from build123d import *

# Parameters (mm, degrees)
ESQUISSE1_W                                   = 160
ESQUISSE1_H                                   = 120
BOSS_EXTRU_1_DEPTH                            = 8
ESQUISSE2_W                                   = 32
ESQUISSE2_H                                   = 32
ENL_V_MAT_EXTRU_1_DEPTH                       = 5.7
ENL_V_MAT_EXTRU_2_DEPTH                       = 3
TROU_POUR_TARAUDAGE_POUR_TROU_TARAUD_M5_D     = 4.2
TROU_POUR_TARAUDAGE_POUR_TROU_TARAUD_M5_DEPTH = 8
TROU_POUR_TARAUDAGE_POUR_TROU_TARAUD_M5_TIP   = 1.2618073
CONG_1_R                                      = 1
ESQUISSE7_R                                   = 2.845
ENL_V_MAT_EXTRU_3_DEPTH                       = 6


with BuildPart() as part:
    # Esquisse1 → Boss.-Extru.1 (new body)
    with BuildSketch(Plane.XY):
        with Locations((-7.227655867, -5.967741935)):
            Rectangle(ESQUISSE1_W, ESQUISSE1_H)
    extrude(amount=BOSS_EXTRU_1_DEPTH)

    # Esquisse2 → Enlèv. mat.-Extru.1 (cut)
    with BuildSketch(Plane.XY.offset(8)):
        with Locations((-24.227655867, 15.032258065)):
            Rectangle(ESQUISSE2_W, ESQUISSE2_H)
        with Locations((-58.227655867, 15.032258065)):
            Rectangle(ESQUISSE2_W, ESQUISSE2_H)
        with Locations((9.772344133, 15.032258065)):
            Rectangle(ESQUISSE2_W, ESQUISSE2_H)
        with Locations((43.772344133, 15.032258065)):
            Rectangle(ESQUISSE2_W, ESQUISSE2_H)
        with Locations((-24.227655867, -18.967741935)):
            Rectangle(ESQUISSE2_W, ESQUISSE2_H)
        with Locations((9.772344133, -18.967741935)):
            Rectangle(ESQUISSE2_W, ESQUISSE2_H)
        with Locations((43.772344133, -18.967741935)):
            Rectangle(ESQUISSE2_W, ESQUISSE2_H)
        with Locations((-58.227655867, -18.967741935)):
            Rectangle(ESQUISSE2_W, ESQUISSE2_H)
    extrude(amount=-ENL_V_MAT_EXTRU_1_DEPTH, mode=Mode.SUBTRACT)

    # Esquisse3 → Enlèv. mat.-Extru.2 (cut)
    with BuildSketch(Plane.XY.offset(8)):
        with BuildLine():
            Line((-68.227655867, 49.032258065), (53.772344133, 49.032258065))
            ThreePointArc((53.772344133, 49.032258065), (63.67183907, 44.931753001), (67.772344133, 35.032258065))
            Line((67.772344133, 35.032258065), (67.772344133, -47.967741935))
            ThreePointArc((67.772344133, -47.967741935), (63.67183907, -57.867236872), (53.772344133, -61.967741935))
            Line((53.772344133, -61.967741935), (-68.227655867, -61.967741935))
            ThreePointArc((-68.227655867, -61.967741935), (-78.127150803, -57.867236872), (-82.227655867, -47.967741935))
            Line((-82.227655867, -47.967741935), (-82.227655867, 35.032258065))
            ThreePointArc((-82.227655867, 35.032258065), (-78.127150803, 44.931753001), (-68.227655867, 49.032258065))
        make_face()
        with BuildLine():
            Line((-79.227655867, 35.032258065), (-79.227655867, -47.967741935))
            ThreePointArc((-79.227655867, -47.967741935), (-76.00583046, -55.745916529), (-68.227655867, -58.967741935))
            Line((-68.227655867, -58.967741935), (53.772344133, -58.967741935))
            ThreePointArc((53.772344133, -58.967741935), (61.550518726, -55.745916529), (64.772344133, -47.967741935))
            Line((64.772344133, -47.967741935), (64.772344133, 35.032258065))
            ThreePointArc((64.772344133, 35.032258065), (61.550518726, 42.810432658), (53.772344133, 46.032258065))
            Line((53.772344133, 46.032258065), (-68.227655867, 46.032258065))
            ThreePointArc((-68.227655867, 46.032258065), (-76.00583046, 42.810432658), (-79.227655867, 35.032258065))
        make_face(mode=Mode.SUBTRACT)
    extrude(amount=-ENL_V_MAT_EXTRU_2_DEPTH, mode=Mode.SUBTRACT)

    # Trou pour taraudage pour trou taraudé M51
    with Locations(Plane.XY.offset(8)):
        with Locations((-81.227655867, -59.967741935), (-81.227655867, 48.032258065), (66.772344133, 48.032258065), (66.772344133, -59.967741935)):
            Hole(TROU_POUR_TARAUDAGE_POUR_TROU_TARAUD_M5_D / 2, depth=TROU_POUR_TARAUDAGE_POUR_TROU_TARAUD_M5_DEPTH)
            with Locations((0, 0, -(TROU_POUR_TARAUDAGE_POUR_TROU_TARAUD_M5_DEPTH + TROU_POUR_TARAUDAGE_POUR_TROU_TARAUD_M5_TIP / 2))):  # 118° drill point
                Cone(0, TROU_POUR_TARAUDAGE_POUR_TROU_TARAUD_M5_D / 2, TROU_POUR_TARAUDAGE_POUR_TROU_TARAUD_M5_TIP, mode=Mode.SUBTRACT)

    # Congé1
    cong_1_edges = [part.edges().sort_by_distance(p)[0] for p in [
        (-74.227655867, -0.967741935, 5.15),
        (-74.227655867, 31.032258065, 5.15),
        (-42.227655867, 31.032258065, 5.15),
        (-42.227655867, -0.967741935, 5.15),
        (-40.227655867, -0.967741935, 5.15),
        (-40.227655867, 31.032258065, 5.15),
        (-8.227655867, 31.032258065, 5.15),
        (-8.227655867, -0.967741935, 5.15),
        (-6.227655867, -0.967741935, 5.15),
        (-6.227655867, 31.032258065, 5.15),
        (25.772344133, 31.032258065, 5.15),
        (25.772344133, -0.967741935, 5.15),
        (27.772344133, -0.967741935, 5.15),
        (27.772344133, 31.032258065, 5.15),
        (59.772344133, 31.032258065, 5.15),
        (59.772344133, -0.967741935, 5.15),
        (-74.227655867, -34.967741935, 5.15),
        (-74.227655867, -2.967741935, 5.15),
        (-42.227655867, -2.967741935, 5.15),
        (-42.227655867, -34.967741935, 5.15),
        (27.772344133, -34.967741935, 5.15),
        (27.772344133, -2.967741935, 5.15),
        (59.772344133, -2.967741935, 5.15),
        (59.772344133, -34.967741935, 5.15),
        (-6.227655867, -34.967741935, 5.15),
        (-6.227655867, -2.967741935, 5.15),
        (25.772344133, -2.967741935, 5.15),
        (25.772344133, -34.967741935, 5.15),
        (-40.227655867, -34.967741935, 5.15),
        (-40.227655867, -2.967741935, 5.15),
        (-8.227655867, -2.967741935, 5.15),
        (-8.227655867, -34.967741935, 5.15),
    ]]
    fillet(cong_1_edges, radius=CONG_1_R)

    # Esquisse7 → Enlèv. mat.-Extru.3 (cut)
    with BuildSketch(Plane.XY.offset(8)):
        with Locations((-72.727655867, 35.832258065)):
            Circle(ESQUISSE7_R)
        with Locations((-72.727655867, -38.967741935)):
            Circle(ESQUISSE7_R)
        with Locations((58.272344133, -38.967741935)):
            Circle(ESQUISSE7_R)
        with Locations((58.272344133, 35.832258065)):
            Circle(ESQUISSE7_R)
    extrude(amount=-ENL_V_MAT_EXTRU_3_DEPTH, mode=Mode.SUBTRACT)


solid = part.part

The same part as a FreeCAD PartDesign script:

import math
import FreeCAD as App
import Part
import Sketcher
Q = App.Units.Quantity


def edges_at(feature, points):
    """Names of the edges that pass closest to the given points."""
    edges = feature.Shape.Edges
    near = lambda p: min(range(len(edges)), key=lambda i: edges[i].distToShape(Part.Vertex(*p))[0])
    return sorted({f"Edge{near(p) + 1}" for p in points})


def add_polygon(sketch, points):
    """Adds a closed chain of lines whose ends are joined by coincident constraints."""
    first, n = sketch.GeometryCount, len(points)
    for a, b in zip(points, points[1:] + points[:1]):
        sketch.addGeometry(Part.LineSegment(App.Vector(*a, 0), App.Vector(*b, 0)), False)
    for i in range(n):
        sketch.addConstraint(Sketcher.Constraint("Coincident", first + i, 2, first + (i + 1) % n, 1))

doc = App.newDocument("Part")
body = doc.addObject("PartDesign::Body", "Body")

# Sketch on XY plane
sketch1 = body.newObject("Sketcher::SketchObject", "Sketch")
sketch1.AttachmentSupport = (doc.getObject("XY_Plane"), [""])
sketch1.MapMode = "FlatFace"
add_polygon(sketch1, [(-87, 54), (-87, -66), (73, -66), (73, 54)])  # lines 0-3
sketch1.addConstraint(Sketcher.Constraint("Vertical", 0))
sketch1.addConstraint(Sketcher.Constraint("Horizontal", 1))
sketch1.addConstraint(Sketcher.Constraint("Vertical", 2))
sketch1.addConstraint(Sketcher.Constraint("Horizontal", 3))
sketch1.addConstraint(Sketcher.Constraint("DistanceX", 1, 1, 1, 2, Q("160 mm")))
sketch1.addConstraint(Sketcher.Constraint("DistanceY", 0, 2, 0, 1, Q("120 mm")))
sketch1.addConstraint(Sketcher.Constraint("DistanceY", 0, 2, -1, 1, Q("65.967742 mm")))
sketch1.addConstraint(Sketcher.Constraint("DistanceX", 0, 2, -1, 1, Q("87.227656 mm")))
pad1 = body.newObject("PartDesign::Pad", "Pad")
pad1.Profile = sketch1
pad1.Length = 8

# Sketch on XY plane
sketch2 = body.newObject("Sketcher::SketchObject", "Sketch001")
sketch2.AttachmentSupport = (doc.getObject("XY_Plane"), [""])
sketch2.MapMode = "FlatFace"
sketch2.AttachmentOffset = App.Placement(App.Vector(0, 0, 8), App.Rotation())
add_polygon(sketch2, [(-40, 31), (-40, -1), (-8, -1), (-8, 31)])  # lines 0-3
add_polygon(sketch2, [(-74, 31), (-74, -1), (-42, -1), (-42, 31)])  # lines 4-7
add_polygon(sketch2, [(-6, 31), (-6, -1), (26, -1), (26, 31)])  # lines 8-11
add_polygon(sketch2, [(28, 31), (28, -1), (60, -1), (60, 31)])  # lines 12-15
add_polygon(sketch2, [(-40, -3), (-40, -35), (-8, -35), (-8, -3)])  # lines 16-19
add_polygon(sketch2, [(-6, -3), (-6, -35), (26, -35), (26, -3)])  # lines 20-23
add_polygon(sketch2, [(28, -3), (28, -35), (60, -35), (60, -3)])  # lines 24-27
add_polygon(sketch2, [(-74, -3), (-74, -35), (-42, -35), (-42, -3)])  # lines 28-31
sketch2.addConstraint(Sketcher.Constraint("Vertical", 0))
sketch2.addConstraint(Sketcher.Constraint("Horizontal", 1))
sketch2.addConstraint(Sketcher.Constraint("Vertical", 2))
sketch2.addConstraint(Sketcher.Constraint("Horizontal", 3))
sketch2.addConstraint(Sketcher.Constraint("Vertical", 4))
sketch2.addConstraint(Sketcher.Constraint("Horizontal", 5))
sketch2.addConstraint(Sketcher.Constraint("Vertical", 6))
sketch2.addConstraint(Sketcher.Constraint("Horizontal", 7))
sketch2.addConstraint(Sketcher.Constraint("Vertical", 8))
sketch2.addConstraint(Sketcher.Constraint("Horizontal", 9))
sketch2.addConstraint(Sketcher.Constraint("Vertical", 10))
sketch2.addConstraint(Sketcher.Constraint("Horizontal", 11))
sketch2.addConstraint(Sketcher.Constraint("Vertical", 12))
sketch2.addConstraint(Sketcher.Constraint("Horizontal", 13))
sketch2.addConstraint(Sketcher.Constraint("Vertical", 14))
sketch2.addConstraint(Sketcher.Constraint("Horizontal", 15))
sketch2.addConstraint(Sketcher.Constraint("Vertical", 16))
sketch2.addConstraint(Sketcher.Constraint("Horizontal", 17))
sketch2.addConstraint(Sketcher.Constraint("Vertical", 18))
sketch2.addConstraint(Sketcher.Constraint("Horizontal", 19))
sketch2.addConstraint(Sketcher.Constraint("Vertical", 20))
sketch2.addConstraint(Sketcher.Constraint("Horizontal", 21))
sketch2.addConstraint(Sketcher.Constraint("Vertical", 22))
sketch2.addConstraint(Sketcher.Constraint("Horizontal", 23))
sketch2.addConstraint(Sketcher.Constraint("Vertical", 24))
sketch2.addConstraint(Sketcher.Constraint("Horizontal", 25))
sketch2.addConstraint(Sketcher.Constraint("Vertical", 26))
sketch2.addConstraint(Sketcher.Constraint("Horizontal", 27))
sketch2.addConstraint(Sketcher.Constraint("Vertical", 28))
sketch2.addConstraint(Sketcher.Constraint("Horizontal", 29))
sketch2.addConstraint(Sketcher.Constraint("Vertical", 30))
sketch2.addConstraint(Sketcher.Constraint("Horizontal", 31))
sketch2.addConstraint(Sketcher.Constraint("Horizontal", 1, 2, 4, 2))
sketch2.addConstraint(Sketcher.Constraint("Horizontal", 3, 2, 6, 2))
sketch2.addConstraint(Sketcher.Constraint("Horizontal", 5, 2, 8, 2))
sketch2.addConstraint(Sketcher.Constraint("Horizontal", 7, 2, 10, 2))
sketch2.addConstraint(Sketcher.Constraint("Horizontal", 9, 2, 12, 2))
sketch2.addConstraint(Sketcher.Constraint("Horizontal", 11, 2, 14, 2))
sketch2.addConstraint(Sketcher.Constraint("Horizontal", 17, 2, 20, 2))
sketch2.addConstraint(Sketcher.Constraint("Horizontal", 19, 2, 22, 2))
sketch2.addConstraint(Sketcher.Constraint("Horizontal", 21, 2, 24, 2))
sketch2.addConstraint(Sketcher.Constraint("Horizontal", 23, 2, 26, 2))
sketch2.addConstraint(Sketcher.Constraint("Horizontal", 25, 2, 28, 2))
sketch2.addConstraint(Sketcher.Constraint("Horizontal", 27, 2, 30, 2))
sketch2.addConstraint(Sketcher.Constraint("Vertical", 3, 2, 16, 2))
sketch2.addConstraint(Sketcher.Constraint("Vertical", 2, 2, 17, 2))
sketch2.addConstraint(Sketcher.Constraint("Vertical", 11, 2, 20, 2))
sketch2.addConstraint(Sketcher.Constraint("Vertical", 10, 2, 21, 2))
sketch2.addConstraint(Sketcher.Constraint("Vertical", 15, 2, 24, 2))
sketch2.addConstraint(Sketcher.Constraint("Vertical", 14, 2, 25, 2))
sketch2.addConstraint(Sketcher.Constraint("Vertical", 7, 2, 28, 2))
sketch2.addConstraint(Sketcher.Constraint("Vertical", 6, 2, 29, 2))
sketch2.addConstraint(Sketcher.Constraint("Equal", 3, 5))
sketch2.addConstraint(Sketcher.Constraint("Equal", 7, 9))
sketch2.addConstraint(Sketcher.Constraint("Equal", 11, 13))
sketch2.addConstraint(Sketcher.Constraint("Equal", 31, 0))
sketch2.addConstraint(Sketcher.Constraint("Equal", 14, 16))
sketch2.addConstraint(Sketcher.Constraint("DistanceX", 1, 1, 1, 2, Q("32 mm")))
sketch2.addConstraint(Sketcher.Constraint("DistanceX", 4, 2, 0, 2, Q("34 mm")))
sketch2.addConstraint(Sketcher.Constraint("DistanceX", 1, 2, 8, 2, Q("2 mm")))
sketch2.addConstraint(Sketcher.Constraint("DistanceX", 9, 2, 12, 2, Q("2 mm")))
sketch2.addConstraint(Sketcher.Constraint("DistanceY", 16, 2, 0, 2, Q("34 mm")))
sketch2.addConstraint(Sketcher.Constraint("DistanceY", 0, 2, -1, 1, Q("0.967742 mm")))
sketch2.addConstraint(Sketcher.Constraint("DistanceX", 0, 2, -1, 1, Q("40.227656 mm")))
pocket1 = body.newObject("PartDesign::Pocket", "Pocket")
pocket1.Profile = sketch2
pocket1.Length = 5.7

# Sketch on XY plane
sketch3 = body.newObject("Sketcher::SketchObject", "Sketch002")
sketch3.AttachmentSupport = (doc.getObject("XY_Plane"), [""])
sketch3.MapMode = "FlatFace"
sketch3.AttachmentOffset = App.Placement(App.Vector(0, 0, 8), App.Rotation())
sketch3.addGeometry(Part.LineSegment(App.Vector(54, 49, 0), App.Vector(-68, 49, 0)), False)
sketch3.addGeometry(Part.ArcOfCircle(Part.Circle(App.Vector(-68, 35, 0), App.Vector(0, 0, 1), 14), math.radians(90), math.radians(180)), False)
sketch3.addGeometry(Part.LineSegment(App.Vector(-82, 35, 0), App.Vector(-82, -48, 0)), False)
sketch3.addGeometry(Part.ArcOfCircle(Part.Circle(App.Vector(-68, -48, 0), App.Vector(0, 0, 1), 14), math.radians(180), math.radians(270)), False)
sketch3.addGeometry(Part.LineSegment(App.Vector(-68, -62, 0), App.Vector(54, -62, 0)), False)
sketch3.addGeometry(Part.ArcOfCircle(Part.Circle(App.Vector(54, -48, 0), App.Vector(0, 0, 1), 14), math.radians(-90), math.radians(0)), False)
sketch3.addGeometry(Part.LineSegment(App.Vector(68, -48, 0), App.Vector(68, 35, 0)), False)
sketch3.addGeometry(Part.ArcOfCircle(Part.Circle(App.Vector(54, 35, 0), App.Vector(0, 0, 1), 14), math.radians(0), math.radians(90)), False)
sketch3.addGeometry(Part.ArcOfCircle(Part.Circle(App.Vector(-68, 35, 0), App.Vector(0, 0, 1), 11), math.radians(90), math.radians(180)), False)
sketch3.addGeometry(Part.LineSegment(App.Vector(-68, 46, 0), App.Vector(54, 46, 0)), False)
sketch3.addGeometry(Part.ArcOfCircle(Part.Circle(App.Vector(54, 35, 0), App.Vector(0, 0, 1), 11), math.radians(0), math.radians(90)), False)
sketch3.addGeometry(Part.LineSegment(App.Vector(65, 35, 0), App.Vector(65, -48, 0)), False)
sketch3.addGeometry(Part.ArcOfCircle(Part.Circle(App.Vector(54, -48, 0), App.Vector(0, 0, 1), 11), math.radians(-90), math.radians(0)), False)
sketch3.addGeometry(Part.LineSegment(App.Vector(54, -59, 0), App.Vector(-68, -59, 0)), False)
sketch3.addGeometry(Part.ArcOfCircle(Part.Circle(App.Vector(-68, -48, 0), App.Vector(0, 0, 1), 11), math.radians(180), math.radians(270)), False)
sketch3.addGeometry(Part.LineSegment(App.Vector(-79, -48, 0), App.Vector(-79, 35, 0)), False)
sketch3.addConstraint(Sketcher.Constraint("Tangent", 0, 2, 1, 1))
sketch3.addConstraint(Sketcher.Constraint("Tangent", 1, 2, 2, 1))
sketch3.addConstraint(Sketcher.Constraint("Tangent", 2, 2, 3, 1))
sketch3.addConstraint(Sketcher.Constraint("Tangent", 3, 2, 4, 1))
sketch3.addConstraint(Sketcher.Constraint("Tangent", 4, 2, 5, 1))
sketch3.addConstraint(Sketcher.Constraint("Tangent", 5, 2, 6, 1))
sketch3.addConstraint(Sketcher.Constraint("Tangent", 6, 2, 7, 1))
sketch3.addConstraint(Sketcher.Constraint("Tangent", 7, 2, 0, 1))
sketch3.addConstraint(Sketcher.Constraint("Tangent", 8, 1, 9, 1))
sketch3.addConstraint(Sketcher.Constraint("Tangent", 9, 2, 10, 2))
sketch3.addConstraint(Sketcher.Constraint("Tangent", 10, 1, 11, 1))
sketch3.addConstraint(Sketcher.Constraint("Tangent", 11, 2, 12, 2))
sketch3.addConstraint(Sketcher.Constraint("Tangent", 12, 1, 13, 1))
sketch3.addConstraint(Sketcher.Constraint("Tangent", 13, 2, 14, 2))
sketch3.addConstraint(Sketcher.Constraint("Tangent", 14, 1, 15, 1))
sketch3.addConstraint(Sketcher.Constraint("Tangent", 15, 2, 8, 2))
sketch3.addConstraint(Sketcher.Constraint("Horizontal", 0))
sketch3.addConstraint(Sketcher.Constraint("Vertical", 2))
sketch3.addConstraint(Sketcher.Constraint("Horizontal", 4))
sketch3.addConstraint(Sketcher.Constraint("Vertical", 6))
sketch3.addConstraint(Sketcher.Constraint("Horizontal", 9))
sketch3.addConstraint(Sketcher.Constraint("Vertical", 11))
sketch3.addConstraint(Sketcher.Constraint("Horizontal", 13))
sketch3.addConstraint(Sketcher.Constraint("Vertical", 15))
sketch3.addConstraint(Sketcher.Constraint("Coincident", 8, 3, 1, 3))
sketch3.addConstraint(Sketcher.Constraint("Coincident", 10, 3, 7, 3))
sketch3.addConstraint(Sketcher.Constraint("Coincident", 12, 3, 5, 3))
sketch3.addConstraint(Sketcher.Constraint("Equal", 1, 3))
sketch3.addConstraint(Sketcher.Constraint("Equal", 3, 5))
sketch3.addConstraint(Sketcher.Constraint("Equal", 5, 7))
sketch3.addConstraint(Sketcher.Constraint("Equal", 12, 14))
sketch3.addConstraint(Sketcher.Constraint("Radius", 1, Q("14 mm")))
sketch3.addConstraint(Sketcher.Constraint("Radius", 8, Q("11 mm")))
sketch3.addConstraint(Sketcher.Constraint("DistanceX", 0, 2, 0, 1, Q("122 mm")))
sketch3.addConstraint(Sketcher.Constraint("DistanceY", 2, 2, 2, 1, Q("83 mm")))
sketch3.addConstraint(Sketcher.Constraint("DistanceY", -1, 1, 1, 3, Q("35.032258 mm")))
sketch3.addConstraint(Sketcher.Constraint("DistanceX", 1, 3, -1, 1, Q("68.227656 mm")))
pocket2 = body.newObject("PartDesign::Pocket", "Pocket001")
pocket2.Profile = sketch3
pocket2.Length = 3

# Sketch on XY plane
sketch4 = body.newObject("Sketcher::SketchObject", "Sketch003")
sketch4.AttachmentSupport = (doc.getObject("XY_Plane"), [""])
sketch4.MapMode = "FlatFace"
sketch4.AttachmentOffset = App.Placement(App.Vector(0, 0, 8), App.Rotation())
sketch4.addGeometry(Part.Circle(App.Vector(-81.2, -60, 0), App.Vector(0, 0, 1), 2.1), False)
sketch4.addGeometry(Part.Circle(App.Vector(-81.2, 48, 0), App.Vector(0, 0, 1), 2.1), False)
sketch4.addGeometry(Part.Circle(App.Vector(66.8, 48, 0), App.Vector(0, 0, 1), 2.1), False)
sketch4.addGeometry(Part.Circle(App.Vector(66.8, -60, 0), App.Vector(0, 0, 1), 2.1), False)
sketch4.addConstraint(Sketcher.Constraint("Equal", 0, 1))
sketch4.addConstraint(Sketcher.Constraint("Equal", 1, 2))
sketch4.addConstraint(Sketcher.Constraint("Equal", 2, 3))
sketch4.addConstraint(Sketcher.Constraint("Horizontal", 1, 3, 2, 3))
sketch4.addConstraint(Sketcher.Constraint("Horizontal", 0, 3, 3, 3))
sketch4.addConstraint(Sketcher.Constraint("Vertical", 0, 3, 1, 3))
sketch4.addConstraint(Sketcher.Constraint("Vertical", 2, 3, 3, 3))
sketch4.addConstraint(Sketcher.Constraint("Diameter", 0, Q("4.2 mm")))
sketch4.addConstraint(Sketcher.Constraint("DistanceY", 0, 3, 1, 3, Q("108 mm")))
sketch4.addConstraint(Sketcher.Constraint("DistanceX", 1, 3, 2, 3, Q("148 mm")))
sketch4.addConstraint(Sketcher.Constraint("DistanceY", 0, 3, -1, 1, Q("59.967742 mm")))
sketch4.addConstraint(Sketcher.Constraint("DistanceX", 0, 3, -1, 1, Q("81.227656 mm")))
doc.recompute()
hole = body.newObject("PartDesign::Hole", "Hole")
hole.Profile = sketch4
hole.ThreadType = "None"
hole.Diameter = 4.2
hole.DepthType = "Dimension"
hole.Depth = 8
hole.DrillPoint = "Angled"
hole.DrillPointAngle = 118
doc.recompute()

fillet = body.newObject("PartDesign::Fillet", "Fillet")
fillet.Base = (hole, edges_at(hole, [
    (-74.228, -0.968, 5.15),
    (-74.228, 31.032, 5.15),
    (-42.228, 31.032, 5.15),
    (-42.228, -0.968, 5.15),
    (-40.228, -0.968, 5.15),
    (-40.228, 31.032, 5.15),
    (-8.228, 31.032, 5.15),
    (-8.228, -0.968, 5.15),
    (-6.228, -0.968, 5.15),
    (-6.228, 31.032, 5.15),
    (25.772, 31.032, 5.15),
    (25.772, -0.968, 5.15),
    (27.772, -0.968, 5.15),
    (27.772, 31.032, 5.15),
    (59.772, 31.032, 5.15),
    (59.772, -0.968, 5.15),
    (-74.228, -34.968, 5.15),
    (-74.228, -2.968, 5.15),
    (-42.228, -2.968, 5.15),
    (-42.228, -34.968, 5.15),
    (27.772, -34.968, 5.15),
    (27.772, -2.968, 5.15),
    (59.772, -2.968, 5.15),
    (59.772, -34.968, 5.15),
    (-6.228, -34.968, 5.15),
    (-6.228, -2.968, 5.15),
    (25.772, -2.968, 5.15),
    (25.772, -34.968, 5.15),
    (-40.228, -34.968, 5.15),
    (-40.228, -2.968, 5.15),
    (-8.228, -2.968, 5.15),
    (-8.228, -34.968, 5.15),
]))
fillet.Radius = 1

# Sketch on XY plane
sketch5 = body.newObject("Sketcher::SketchObject", "Sketch004")
sketch5.AttachmentSupport = (doc.getObject("XY_Plane"), [""])
sketch5.MapMode = "FlatFace"
sketch5.AttachmentOffset = App.Placement(App.Vector(0, 0, 8), App.Rotation())
sketch5.addGeometry(Part.Circle(App.Vector(-72.7, 35.8, 0), App.Vector(0, 0, 1), 2.8), False)
sketch5.addGeometry(Part.Circle(App.Vector(-72.7, -39, 0), App.Vector(0, 0, 1), 2.8), False)
sketch5.addGeometry(Part.Circle(App.Vector(58.3, -39, 0), App.Vector(0, 0, 1), 2.8), False)
sketch5.addGeometry(Part.Circle(App.Vector(58.3, 35.8, 0), App.Vector(0, 0, 1), 2.8), False)
sketch5.addConstraint(Sketcher.Constraint("Equal", 0, 1))
sketch5.addConstraint(Sketcher.Constraint("Equal", 1, 2))
sketch5.addConstraint(Sketcher.Constraint("Equal", 2, 3))
sketch5.addConstraint(Sketcher.Constraint("Horizontal", 1, 3, 2, 3))
sketch5.addConstraint(Sketcher.Constraint("Horizontal", 0, 3, 3, 3))
sketch5.addConstraint(Sketcher.Constraint("Vertical", 0, 3, 1, 3))
sketch5.addConstraint(Sketcher.Constraint("Vertical", 2, 3, 3, 3))
sketch5.addConstraint(Sketcher.Constraint("Diameter", 0, Q("5.69 mm")))
sketch5.addConstraint(Sketcher.Constraint("DistanceX", 1, 3, 2, 3, Q("131 mm")))
sketch5.addConstraint(Sketcher.Constraint("DistanceY", 1, 3, 0, 3, Q("74.8 mm")))
sketch5.addConstraint(Sketcher.Constraint("DistanceY", -1, 1, 0, 3, Q("35.832258 mm")))
sketch5.addConstraint(Sketcher.Constraint("DistanceX", 0, 3, -1, 1, Q("72.727656 mm")))
pocket3 = body.newObject("PartDesign::Pocket", "Pocket002")
pocket3.Profile = sketch5
pocket3.Length = 6

doc.recompute()
